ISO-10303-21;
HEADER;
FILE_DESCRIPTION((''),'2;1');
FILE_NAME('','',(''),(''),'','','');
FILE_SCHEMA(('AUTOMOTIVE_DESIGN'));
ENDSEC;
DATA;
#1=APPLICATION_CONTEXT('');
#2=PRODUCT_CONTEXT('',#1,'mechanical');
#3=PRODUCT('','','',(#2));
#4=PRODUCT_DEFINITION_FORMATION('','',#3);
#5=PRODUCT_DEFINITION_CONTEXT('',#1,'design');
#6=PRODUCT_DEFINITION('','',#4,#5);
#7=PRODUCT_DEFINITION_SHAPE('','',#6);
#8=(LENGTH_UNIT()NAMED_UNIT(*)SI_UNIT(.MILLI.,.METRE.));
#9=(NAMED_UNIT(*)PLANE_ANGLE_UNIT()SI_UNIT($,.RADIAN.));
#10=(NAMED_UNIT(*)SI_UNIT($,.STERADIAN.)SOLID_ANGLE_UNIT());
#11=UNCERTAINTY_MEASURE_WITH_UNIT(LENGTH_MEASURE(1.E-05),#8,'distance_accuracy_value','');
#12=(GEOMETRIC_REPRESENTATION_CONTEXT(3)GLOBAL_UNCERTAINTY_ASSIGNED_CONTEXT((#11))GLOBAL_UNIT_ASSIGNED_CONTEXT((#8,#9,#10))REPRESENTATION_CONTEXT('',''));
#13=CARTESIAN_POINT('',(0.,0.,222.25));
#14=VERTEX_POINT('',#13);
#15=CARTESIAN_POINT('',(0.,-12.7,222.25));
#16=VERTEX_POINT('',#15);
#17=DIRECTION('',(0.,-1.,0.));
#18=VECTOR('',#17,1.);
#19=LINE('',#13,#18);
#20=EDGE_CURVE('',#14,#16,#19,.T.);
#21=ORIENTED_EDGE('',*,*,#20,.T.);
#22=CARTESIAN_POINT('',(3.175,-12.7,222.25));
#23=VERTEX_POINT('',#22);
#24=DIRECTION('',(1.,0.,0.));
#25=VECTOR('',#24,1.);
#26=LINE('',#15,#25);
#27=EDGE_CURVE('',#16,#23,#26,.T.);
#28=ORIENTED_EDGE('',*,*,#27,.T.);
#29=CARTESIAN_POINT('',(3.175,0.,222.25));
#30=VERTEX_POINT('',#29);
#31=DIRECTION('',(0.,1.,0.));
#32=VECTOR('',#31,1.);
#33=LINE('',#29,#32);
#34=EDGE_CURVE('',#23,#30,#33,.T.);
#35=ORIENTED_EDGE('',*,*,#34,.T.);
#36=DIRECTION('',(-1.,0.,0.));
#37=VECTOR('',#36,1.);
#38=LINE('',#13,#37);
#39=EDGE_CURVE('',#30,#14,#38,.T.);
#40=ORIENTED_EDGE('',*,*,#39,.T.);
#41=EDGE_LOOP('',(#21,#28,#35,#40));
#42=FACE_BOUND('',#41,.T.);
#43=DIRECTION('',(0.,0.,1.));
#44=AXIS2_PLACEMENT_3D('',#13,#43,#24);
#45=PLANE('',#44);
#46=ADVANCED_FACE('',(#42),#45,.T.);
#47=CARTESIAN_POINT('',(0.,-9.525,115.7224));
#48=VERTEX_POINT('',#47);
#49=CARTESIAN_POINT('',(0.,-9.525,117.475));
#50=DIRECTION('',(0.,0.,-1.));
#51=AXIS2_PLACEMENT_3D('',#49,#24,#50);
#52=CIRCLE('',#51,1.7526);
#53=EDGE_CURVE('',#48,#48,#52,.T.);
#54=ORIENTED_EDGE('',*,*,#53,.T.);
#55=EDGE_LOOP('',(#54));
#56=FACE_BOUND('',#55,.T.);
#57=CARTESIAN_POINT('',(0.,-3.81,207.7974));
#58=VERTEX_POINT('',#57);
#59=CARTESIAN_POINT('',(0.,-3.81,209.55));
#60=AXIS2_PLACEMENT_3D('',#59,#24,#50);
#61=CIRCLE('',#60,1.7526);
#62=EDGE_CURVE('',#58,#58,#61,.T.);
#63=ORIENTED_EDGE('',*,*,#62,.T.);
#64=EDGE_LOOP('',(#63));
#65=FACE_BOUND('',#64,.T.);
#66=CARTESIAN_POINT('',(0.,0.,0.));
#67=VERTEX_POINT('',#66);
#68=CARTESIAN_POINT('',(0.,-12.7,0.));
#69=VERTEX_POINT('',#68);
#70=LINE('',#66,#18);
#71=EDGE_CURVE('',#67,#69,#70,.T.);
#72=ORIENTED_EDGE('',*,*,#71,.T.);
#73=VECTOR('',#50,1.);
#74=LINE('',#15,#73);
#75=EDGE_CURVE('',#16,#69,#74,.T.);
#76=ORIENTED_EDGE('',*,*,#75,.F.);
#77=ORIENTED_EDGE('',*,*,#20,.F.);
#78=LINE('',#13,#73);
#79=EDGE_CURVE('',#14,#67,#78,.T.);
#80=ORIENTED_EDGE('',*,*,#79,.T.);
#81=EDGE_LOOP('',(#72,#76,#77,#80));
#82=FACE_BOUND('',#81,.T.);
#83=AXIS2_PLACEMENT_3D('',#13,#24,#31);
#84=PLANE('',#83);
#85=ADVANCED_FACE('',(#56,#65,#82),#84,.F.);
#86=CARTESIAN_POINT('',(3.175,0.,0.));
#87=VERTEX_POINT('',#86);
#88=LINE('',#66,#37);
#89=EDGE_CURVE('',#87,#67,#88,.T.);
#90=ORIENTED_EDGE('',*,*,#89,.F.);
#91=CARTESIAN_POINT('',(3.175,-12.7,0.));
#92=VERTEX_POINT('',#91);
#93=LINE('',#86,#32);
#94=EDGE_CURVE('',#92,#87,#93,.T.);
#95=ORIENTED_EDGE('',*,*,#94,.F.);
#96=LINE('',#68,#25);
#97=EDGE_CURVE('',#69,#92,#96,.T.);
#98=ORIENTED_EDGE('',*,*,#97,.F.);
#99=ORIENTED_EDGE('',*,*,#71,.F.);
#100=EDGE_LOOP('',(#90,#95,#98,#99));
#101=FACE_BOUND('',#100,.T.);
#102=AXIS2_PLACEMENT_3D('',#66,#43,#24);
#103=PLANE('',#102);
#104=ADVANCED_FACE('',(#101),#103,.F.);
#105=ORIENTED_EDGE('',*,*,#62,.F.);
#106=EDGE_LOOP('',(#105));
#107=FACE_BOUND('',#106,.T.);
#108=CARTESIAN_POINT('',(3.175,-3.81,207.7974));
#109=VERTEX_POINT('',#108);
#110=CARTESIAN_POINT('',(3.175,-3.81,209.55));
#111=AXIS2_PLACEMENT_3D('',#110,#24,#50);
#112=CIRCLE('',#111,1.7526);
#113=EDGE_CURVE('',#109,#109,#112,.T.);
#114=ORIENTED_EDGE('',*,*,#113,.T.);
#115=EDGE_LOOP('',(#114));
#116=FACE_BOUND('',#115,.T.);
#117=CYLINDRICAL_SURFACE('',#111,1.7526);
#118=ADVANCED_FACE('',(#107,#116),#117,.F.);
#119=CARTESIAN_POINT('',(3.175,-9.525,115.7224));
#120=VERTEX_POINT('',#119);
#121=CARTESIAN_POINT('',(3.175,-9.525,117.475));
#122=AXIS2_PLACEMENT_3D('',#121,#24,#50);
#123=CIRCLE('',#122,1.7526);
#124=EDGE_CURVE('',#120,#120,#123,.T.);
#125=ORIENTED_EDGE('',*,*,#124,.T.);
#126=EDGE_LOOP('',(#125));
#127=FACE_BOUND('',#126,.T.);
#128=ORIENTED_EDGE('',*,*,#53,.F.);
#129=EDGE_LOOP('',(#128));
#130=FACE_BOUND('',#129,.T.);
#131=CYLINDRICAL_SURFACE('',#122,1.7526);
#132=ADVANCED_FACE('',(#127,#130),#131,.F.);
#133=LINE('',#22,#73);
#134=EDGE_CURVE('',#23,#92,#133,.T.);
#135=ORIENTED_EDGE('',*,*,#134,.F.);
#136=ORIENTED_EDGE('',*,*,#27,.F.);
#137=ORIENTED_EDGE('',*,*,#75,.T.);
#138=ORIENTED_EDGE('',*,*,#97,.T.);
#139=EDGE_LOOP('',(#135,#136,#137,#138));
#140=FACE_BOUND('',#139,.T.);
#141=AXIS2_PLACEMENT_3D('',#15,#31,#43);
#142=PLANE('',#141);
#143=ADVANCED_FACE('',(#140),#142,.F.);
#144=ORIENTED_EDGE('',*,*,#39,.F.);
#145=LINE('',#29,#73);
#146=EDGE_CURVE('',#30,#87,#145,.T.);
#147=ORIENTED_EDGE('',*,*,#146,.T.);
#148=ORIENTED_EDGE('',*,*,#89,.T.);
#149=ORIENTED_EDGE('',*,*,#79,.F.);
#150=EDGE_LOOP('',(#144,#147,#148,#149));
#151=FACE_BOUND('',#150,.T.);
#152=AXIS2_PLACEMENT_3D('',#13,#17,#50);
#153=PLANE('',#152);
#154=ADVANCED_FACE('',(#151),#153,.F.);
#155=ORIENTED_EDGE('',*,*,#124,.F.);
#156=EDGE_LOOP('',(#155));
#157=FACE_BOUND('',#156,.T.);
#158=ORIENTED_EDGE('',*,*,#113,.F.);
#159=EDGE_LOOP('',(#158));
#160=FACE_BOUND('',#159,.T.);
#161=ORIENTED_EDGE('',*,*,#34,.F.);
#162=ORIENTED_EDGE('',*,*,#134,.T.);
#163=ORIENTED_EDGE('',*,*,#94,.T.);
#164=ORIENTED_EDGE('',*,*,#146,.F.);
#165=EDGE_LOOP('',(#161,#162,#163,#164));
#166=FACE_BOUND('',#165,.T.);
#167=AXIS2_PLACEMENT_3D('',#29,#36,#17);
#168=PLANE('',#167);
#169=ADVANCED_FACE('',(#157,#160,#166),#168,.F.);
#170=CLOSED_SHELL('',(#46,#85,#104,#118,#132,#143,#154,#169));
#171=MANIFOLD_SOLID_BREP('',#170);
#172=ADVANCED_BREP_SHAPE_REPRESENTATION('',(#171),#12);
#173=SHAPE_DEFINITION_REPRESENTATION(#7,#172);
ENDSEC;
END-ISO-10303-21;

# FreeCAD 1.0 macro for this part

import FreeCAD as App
import Part
import Sketcher
from FreeCAD import Vector
Q = App.Units.Quantity

doc = App.newDocument("Part")
body = doc.addObject("PartDesign::Body", "Body")

sketch1 = body.newObject("Sketcher::SketchObject", "Sketch")
sketch1.AttachmentSupport = (doc.getObject("XY_Plane"), [""])
sketch1.MapMode = "FlatFace"
sketch1.addGeometry(Part.LineSegment(Vector(0, 0, 0), Vector(0, -12.7, 0)), False)
sketch1.addGeometry(Part.LineSegment(Vector(0, -12.7, 0), Vector(3.2, -12.7, 0)), False)
sketch1.addGeometry(Part.LineSegment(Vector(3.2, -12.7, 0), Vector(3.2, 0, 0)), False)
sketch1.addGeometry(Part.LineSegment(Vector(3.2, 0, 0), Vector(0, 0, 0)), False)
sketch1.addConstraint(Sketcher.Constraint("Coincident", 0, 2, 1, 1))
sketch1.addConstraint(Sketcher.Constraint("Coincident", 1, 2, 2, 1))
sketch1.addConstraint(Sketcher.Constraint("Coincident", 2, 2, 3, 1))
sketch1.addConstraint(Sketcher.Constraint("Coincident", 3, 2, 0, 1))
sketch1.addConstraint(Sketcher.Constraint("Vertical", 0))
sketch1.addConstraint(Sketcher.Constraint("Horizontal", 1))
sketch1.addConstraint(Sketcher.Constraint("Vertical", 2))
sketch1.addConstraint(Sketcher.Constraint("Horizontal", 3))
sketch1.addConstraint(Sketcher.Constraint("Coincident", 3, 2, -1, 1))
sketch1.addConstraint(Sketcher.Constraint("DistanceY", 0, 2, 0, 1, Q("0.5 in")))
sketch1.addConstraint(Sketcher.Constraint("DistanceX", 1, 1, 1, 2, Q("0.125 in")))
pad1 = body.newObject("PartDesign::Pad", "Pad")
pad1.Profile = sketch1
pad1.Length = Q("8.75 in")

sketch2 = body.newObject("Sketcher::SketchObject", "Sketch001")
sketch2.AttachmentSupport = (doc.getObject("YZ_Plane"), [""])
sketch2.MapMode = "FlatFace"
sketch2.AttachmentOffset = App.Placement(Vector(0, 0, 0.125 * 25.4), App.Rotation())
sketch2.addGeometry(Part.Circle(Vector(-3.8, 209.6, 0), Vector(0, 0, 1), 1.8), False)
sketch2.addConstraint(Sketcher.Constraint("Diameter", 0, Q("0.138 in")))
sketch2.addConstraint(Sketcher.Constraint("DistanceX", 0, 3, -1, 1, Q("0.15 in")))
sketch2.addConstraint(Sketcher.Constraint("DistanceY", -1, 1, 0, 3, Q("8.25 in")))
doc.recompute()
hole = body.newObject("PartDesign::Hole", "Hole")
hole.Profile = sketch2
hole.ThreadType = "None"
hole.Diameter = Q("0.138 in")
hole.DepthType = "ThroughAll"

sketch3 = body.newObject("Sketcher::SketchObject", "Sketch002")
sketch3.AttachmentSupport = (doc.getObject("YZ_Plane"), [""])
sketch3.MapMode = "FlatFace"
sketch3.AttachmentOffset = App.Placement(Vector(0, 0, 0.125 * 25.4), App.Rotation())
sketch3.addGeometry(Part.Circle(Vector(-9.5, 117.5, 0), Vector(0, 0, 1), 1.8), False)
sketch3.addConstraint(Sketcher.Constraint("Diameter", 0, Q("0.138 in")))
sketch3.addConstraint(Sketcher.Constraint("DistanceX", 0, 3, -1, 1, Q("0.375 in")))
sketch3.addConstraint(Sketcher.Constraint("DistanceY", -1, 1, 0, 3, Q("4.625 in")))
doc.recompute()
hole2 = body.newObject("PartDesign::Hole", "Hole001")
hole2.Profile = sketch3
hole2.ThreadType = "None"
hole2.Diameter = Q("0.138 in")
hole2.DepthType = "ThroughAll"

doc.recompute()
